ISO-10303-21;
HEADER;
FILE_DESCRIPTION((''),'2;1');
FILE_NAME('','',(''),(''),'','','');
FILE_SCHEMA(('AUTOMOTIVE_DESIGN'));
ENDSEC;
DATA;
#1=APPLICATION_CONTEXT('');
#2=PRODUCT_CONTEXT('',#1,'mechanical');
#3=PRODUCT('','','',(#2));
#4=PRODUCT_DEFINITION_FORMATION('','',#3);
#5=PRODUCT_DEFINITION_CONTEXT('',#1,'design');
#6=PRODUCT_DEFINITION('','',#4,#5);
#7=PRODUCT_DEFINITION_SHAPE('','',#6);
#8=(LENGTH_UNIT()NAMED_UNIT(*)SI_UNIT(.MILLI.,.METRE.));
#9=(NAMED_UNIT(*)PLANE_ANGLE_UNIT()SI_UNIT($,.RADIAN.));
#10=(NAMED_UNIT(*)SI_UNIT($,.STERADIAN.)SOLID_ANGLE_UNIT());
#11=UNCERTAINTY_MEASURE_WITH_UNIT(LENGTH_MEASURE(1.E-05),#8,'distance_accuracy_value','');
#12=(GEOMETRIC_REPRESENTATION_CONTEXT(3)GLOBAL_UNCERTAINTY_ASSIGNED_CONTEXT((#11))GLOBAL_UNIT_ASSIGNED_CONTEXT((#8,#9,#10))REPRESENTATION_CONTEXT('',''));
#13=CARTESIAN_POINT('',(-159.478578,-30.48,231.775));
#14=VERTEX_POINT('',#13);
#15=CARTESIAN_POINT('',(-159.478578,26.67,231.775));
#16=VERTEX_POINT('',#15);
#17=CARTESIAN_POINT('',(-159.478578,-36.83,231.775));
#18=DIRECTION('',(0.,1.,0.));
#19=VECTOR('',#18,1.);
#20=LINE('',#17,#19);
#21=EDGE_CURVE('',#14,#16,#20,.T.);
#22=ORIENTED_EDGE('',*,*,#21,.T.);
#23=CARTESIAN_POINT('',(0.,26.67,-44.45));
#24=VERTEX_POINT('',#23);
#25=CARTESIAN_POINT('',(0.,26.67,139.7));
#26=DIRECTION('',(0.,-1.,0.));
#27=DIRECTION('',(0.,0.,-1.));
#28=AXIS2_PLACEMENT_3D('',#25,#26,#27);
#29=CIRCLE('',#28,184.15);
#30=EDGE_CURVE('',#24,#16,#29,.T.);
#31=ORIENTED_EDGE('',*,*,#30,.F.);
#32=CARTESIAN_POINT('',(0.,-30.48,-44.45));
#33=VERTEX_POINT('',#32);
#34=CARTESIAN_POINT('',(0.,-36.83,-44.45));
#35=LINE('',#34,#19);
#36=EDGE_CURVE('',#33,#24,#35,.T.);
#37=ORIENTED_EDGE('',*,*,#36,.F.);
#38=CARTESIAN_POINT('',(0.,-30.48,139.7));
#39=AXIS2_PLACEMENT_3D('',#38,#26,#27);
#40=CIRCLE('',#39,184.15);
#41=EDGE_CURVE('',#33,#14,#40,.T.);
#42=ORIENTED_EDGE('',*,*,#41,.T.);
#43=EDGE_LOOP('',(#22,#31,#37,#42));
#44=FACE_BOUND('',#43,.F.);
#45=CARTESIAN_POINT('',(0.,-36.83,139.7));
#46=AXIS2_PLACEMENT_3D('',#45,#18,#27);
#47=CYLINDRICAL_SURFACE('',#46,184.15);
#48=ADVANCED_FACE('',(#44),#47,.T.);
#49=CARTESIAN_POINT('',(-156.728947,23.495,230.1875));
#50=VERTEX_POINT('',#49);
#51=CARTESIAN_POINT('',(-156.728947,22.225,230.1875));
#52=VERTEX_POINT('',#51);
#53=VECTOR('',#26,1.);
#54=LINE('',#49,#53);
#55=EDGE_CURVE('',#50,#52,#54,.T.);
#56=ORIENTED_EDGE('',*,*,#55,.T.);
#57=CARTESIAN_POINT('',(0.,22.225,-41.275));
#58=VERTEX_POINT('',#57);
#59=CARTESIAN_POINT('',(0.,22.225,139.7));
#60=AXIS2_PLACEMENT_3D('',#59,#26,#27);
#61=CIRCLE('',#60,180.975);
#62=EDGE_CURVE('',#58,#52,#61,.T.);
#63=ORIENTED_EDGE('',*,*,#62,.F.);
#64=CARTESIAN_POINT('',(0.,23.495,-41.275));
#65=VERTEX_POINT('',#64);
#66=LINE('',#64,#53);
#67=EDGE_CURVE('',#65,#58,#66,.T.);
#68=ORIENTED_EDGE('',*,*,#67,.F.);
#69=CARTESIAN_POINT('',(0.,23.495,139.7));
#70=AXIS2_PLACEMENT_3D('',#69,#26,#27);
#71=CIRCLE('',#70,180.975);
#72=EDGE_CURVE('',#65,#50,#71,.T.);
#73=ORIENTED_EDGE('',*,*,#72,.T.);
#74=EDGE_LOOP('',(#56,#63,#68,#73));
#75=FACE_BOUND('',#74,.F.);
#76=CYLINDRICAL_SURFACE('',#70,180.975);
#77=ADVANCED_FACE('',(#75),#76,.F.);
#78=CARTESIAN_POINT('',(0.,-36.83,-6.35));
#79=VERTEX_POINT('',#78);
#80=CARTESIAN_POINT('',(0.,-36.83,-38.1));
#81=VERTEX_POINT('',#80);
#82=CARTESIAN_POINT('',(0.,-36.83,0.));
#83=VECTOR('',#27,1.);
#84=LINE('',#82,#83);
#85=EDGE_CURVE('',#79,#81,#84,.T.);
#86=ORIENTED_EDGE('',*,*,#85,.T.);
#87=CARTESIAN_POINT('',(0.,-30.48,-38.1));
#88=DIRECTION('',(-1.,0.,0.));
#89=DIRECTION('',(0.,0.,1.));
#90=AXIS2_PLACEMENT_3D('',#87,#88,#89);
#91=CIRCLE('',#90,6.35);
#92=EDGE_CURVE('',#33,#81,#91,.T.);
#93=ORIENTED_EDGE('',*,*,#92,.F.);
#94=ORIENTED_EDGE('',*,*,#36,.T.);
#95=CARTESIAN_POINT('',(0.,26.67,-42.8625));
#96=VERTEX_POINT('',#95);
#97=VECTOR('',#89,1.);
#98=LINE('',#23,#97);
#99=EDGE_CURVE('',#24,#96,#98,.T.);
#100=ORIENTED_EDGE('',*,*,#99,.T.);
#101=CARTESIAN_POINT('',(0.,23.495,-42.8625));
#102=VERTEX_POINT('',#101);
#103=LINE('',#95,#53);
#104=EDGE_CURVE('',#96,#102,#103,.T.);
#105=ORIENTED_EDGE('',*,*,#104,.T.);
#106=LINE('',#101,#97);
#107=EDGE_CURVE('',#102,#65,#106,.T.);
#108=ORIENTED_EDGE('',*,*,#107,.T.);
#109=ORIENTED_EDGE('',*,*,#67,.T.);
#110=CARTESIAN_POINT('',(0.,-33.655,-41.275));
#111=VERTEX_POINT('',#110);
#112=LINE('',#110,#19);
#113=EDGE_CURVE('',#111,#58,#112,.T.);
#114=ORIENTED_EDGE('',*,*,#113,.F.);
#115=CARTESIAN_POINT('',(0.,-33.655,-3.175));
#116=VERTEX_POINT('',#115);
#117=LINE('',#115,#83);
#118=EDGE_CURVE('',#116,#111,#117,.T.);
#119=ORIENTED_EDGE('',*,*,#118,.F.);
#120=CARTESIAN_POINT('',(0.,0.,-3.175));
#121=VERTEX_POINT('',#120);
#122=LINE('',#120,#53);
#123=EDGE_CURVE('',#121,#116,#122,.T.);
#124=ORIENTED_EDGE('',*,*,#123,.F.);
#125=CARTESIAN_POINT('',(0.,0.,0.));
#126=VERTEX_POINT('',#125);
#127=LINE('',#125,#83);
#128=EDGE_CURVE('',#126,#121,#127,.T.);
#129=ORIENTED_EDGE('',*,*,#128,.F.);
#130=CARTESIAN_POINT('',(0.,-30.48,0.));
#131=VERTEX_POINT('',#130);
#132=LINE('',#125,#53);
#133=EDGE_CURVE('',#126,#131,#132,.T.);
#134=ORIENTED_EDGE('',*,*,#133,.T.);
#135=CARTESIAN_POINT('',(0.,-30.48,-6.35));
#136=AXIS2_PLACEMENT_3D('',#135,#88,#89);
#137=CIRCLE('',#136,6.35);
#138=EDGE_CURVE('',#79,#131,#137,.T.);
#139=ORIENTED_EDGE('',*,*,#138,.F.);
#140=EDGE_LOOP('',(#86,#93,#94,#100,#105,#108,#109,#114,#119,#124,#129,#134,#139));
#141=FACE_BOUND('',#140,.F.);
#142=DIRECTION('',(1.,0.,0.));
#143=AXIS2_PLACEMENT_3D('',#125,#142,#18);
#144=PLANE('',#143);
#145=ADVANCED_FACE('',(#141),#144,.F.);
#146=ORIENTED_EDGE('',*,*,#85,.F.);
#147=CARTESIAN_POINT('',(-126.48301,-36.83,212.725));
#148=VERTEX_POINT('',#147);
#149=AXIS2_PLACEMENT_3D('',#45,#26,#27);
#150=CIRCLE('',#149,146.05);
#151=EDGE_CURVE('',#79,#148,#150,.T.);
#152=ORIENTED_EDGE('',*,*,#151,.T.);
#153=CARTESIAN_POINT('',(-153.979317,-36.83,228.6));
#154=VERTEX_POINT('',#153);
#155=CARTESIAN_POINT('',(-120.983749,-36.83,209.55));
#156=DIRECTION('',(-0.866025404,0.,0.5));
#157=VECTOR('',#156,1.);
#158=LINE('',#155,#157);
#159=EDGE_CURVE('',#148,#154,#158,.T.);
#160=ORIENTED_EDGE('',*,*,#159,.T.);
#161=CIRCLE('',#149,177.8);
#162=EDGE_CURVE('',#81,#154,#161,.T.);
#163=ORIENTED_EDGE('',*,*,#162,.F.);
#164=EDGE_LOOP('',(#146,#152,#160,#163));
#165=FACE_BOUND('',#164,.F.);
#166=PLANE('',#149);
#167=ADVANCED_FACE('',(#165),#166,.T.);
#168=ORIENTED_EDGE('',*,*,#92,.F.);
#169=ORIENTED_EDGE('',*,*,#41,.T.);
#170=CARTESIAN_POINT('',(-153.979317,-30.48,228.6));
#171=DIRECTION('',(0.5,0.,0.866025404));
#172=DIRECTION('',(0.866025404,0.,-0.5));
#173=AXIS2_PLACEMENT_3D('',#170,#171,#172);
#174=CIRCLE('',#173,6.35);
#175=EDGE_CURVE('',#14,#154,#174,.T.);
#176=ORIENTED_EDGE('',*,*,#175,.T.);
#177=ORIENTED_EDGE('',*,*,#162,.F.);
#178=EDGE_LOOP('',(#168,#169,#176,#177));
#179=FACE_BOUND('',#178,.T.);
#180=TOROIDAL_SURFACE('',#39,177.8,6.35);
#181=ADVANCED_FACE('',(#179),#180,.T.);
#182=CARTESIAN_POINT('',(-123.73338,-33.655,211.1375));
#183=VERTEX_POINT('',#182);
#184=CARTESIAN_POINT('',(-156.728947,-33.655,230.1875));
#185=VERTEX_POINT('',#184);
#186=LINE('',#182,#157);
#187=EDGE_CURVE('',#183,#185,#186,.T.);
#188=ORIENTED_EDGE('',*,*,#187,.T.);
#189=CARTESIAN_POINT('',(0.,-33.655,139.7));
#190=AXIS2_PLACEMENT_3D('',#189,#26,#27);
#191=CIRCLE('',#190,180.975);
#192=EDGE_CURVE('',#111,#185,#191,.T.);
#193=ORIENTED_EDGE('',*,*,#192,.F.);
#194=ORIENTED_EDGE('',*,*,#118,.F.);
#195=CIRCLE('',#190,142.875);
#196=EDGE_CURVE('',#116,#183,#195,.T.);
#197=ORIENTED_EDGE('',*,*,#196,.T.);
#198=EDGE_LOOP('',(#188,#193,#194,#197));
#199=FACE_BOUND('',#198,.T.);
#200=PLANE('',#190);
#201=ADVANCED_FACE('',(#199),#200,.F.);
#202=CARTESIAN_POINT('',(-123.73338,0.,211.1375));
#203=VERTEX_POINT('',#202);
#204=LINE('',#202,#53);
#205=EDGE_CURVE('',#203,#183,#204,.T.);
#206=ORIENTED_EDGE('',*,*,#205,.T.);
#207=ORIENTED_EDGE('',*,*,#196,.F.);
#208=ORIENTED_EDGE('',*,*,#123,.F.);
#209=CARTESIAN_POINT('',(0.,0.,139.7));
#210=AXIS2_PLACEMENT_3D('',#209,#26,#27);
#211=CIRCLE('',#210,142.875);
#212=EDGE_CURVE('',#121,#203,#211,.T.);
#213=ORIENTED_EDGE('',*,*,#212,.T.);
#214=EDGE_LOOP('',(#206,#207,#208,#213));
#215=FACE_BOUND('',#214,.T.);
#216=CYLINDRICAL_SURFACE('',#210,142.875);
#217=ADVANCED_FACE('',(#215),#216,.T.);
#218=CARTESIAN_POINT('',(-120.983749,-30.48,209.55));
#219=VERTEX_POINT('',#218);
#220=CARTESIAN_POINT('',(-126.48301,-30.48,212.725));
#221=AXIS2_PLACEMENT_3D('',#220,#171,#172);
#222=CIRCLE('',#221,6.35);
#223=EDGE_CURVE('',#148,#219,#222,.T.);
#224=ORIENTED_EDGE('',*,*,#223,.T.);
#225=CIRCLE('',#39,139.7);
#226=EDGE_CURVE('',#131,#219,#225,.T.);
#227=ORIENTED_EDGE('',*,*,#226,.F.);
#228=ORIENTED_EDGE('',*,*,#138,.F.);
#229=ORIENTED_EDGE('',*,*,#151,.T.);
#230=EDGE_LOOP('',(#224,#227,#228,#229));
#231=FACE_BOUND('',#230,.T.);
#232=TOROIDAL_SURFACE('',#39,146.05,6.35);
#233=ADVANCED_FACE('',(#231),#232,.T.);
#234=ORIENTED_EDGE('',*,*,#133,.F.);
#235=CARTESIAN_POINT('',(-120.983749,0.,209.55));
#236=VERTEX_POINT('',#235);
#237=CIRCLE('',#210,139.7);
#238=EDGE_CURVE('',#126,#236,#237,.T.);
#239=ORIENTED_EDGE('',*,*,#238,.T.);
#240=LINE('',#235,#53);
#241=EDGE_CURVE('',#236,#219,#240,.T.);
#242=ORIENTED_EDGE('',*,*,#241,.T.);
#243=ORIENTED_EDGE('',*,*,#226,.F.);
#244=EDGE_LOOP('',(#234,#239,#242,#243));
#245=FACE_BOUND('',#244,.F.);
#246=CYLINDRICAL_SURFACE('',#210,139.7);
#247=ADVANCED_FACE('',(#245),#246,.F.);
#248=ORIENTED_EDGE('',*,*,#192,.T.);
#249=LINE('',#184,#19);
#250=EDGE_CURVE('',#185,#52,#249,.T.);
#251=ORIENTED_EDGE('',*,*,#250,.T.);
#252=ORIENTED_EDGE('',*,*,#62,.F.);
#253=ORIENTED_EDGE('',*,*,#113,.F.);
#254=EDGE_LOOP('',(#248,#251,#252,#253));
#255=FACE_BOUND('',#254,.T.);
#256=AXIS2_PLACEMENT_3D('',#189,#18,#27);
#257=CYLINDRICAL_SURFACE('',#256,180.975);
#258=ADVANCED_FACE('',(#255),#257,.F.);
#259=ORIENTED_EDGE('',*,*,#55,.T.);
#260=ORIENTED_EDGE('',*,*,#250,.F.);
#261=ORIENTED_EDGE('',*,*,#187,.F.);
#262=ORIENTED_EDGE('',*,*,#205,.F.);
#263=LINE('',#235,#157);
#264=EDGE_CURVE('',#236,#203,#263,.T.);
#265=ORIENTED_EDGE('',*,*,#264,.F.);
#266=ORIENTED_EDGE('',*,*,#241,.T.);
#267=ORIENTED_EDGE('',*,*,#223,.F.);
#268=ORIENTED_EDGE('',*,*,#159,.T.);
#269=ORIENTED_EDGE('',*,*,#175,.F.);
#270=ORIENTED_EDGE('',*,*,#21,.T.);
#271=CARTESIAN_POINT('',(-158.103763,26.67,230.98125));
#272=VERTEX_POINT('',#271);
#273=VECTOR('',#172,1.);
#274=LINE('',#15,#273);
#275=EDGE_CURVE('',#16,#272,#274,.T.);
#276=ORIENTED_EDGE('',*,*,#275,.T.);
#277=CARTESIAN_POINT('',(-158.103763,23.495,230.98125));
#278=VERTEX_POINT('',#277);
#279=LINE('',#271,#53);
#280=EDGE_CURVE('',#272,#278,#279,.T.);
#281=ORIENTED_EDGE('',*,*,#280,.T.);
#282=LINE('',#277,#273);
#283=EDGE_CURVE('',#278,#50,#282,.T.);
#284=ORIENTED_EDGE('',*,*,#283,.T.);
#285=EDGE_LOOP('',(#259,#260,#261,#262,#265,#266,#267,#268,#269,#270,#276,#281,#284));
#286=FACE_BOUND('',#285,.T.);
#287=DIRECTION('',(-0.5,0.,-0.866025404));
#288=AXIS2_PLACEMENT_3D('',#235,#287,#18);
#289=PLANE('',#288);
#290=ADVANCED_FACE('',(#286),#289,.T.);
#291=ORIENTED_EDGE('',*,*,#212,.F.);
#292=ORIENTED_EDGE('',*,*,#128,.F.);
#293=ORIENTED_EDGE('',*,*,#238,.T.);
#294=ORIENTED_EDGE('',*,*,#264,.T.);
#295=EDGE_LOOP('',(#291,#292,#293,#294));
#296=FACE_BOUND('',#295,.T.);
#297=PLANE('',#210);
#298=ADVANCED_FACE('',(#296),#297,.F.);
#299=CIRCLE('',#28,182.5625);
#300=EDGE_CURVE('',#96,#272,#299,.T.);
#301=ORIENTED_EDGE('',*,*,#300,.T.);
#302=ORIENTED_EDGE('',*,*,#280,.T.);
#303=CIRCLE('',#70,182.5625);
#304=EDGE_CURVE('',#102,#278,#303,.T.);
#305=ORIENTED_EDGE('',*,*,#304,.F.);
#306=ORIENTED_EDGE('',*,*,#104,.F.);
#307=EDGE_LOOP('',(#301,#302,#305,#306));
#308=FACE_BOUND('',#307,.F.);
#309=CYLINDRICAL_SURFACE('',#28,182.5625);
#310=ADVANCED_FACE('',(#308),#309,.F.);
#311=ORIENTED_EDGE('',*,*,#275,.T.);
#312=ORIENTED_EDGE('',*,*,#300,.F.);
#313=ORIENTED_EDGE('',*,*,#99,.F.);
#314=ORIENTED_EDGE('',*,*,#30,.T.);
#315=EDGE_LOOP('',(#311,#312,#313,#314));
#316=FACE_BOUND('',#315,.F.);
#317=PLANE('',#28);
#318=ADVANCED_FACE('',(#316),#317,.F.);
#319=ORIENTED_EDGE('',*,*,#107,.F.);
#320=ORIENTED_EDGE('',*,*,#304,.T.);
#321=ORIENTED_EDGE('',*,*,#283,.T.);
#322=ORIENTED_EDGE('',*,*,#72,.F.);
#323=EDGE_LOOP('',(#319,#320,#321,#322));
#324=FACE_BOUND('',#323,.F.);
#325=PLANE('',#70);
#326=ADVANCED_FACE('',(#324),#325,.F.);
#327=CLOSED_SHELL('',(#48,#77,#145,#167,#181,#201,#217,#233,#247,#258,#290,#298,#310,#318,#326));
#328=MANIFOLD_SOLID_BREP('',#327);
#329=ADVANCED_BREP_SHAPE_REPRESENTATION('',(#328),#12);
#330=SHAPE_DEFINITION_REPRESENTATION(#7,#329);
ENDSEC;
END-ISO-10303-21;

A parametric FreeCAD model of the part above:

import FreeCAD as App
import Part
import Sketcher
from FreeCAD import Vector
Q = App.Units.Quantity


def edges_at(feature, points):
    """Names of the edges that pass closest to the given points."""
    edges = feature.Shape.Edges
    near = lambda p: min(range(len(edges)), key=lambda i: edges[i].distToShape(Part.Vertex(*p))[0])
    return sorted({f"Edge{near(p) + 1}" for p in points})

doc = App.newDocument("Part")
params = doc.addObject("Spreadsheet::Sheet", "Params")
for row, (alias, value) in enumerate([
    ("sketch1_width", "2.5 in"),
    ("sketch1_height", "1.5 in"),
    ("sketch1_width2", "1.45 in"),
    ("sketch1_height2", "1.75 in"),
    ("sketch1_width3", "0.125 in"),
    ("revolution_angle", "240 deg"),
    ("fillet_radius", "0.25 in"),
], start=1):
    params.set(f"A{row}", alias)
    params.set(f"B{row}", "=" + value)
    params.setAlias(f"B{row}", alias)

body = doc.addObject("PartDesign::Body", "Body")

sketch1 = body.newObject("Sketcher::SketchObject", "Sketch")
sketch1.AttachmentSupport = (doc.getObject("YZ_Plane"), [""])
sketch1.MapMode = "FlatFace"
sketch1.addGeometry(Part.LineSegment(Vector(0, -3.2, 0), Vector(0, 0, 0)), False)
sketch1.addGeometry(Part.LineSegment(Vector(0, 0, 0), Vector(-36.8, 0, 0)), False)
sketch1.addGeometry(Part.LineSegment(Vector(-36.8, 0, 0), Vector(-36.8, -44.5, 0)), False)
sketch1.addGeometry(Part.LineSegment(Vector(-36.8, -44.5, 0), Vector(26.7, -44.5, 0)), False)
sketch1.addGeometry(Part.LineSegment(Vector(26.7, -44.5, 0), Vector(26.7, -42.9, 0)), False)
sketch1.addGeometry(Part.LineSegment(Vector(26.7, -42.9, 0), Vector(23.5, -42.9, 0)), False)
sketch1.addGeometry(Part.LineSegment(Vector(23.5, -42.9, 0), Vector(23.5, -41.3, 0)), False)
sketch1.addGeometry(Part.LineSegment(Vector(23.5, -41.3, 0), Vector(-33.7, -41.3, 0)), False)
sketch1.addGeometry(Part.LineSegment(Vector(-33.7, -41.3, 0), Vector(-33.7, -3.2, 0)), False)
sketch1.addGeometry(Part.LineSegment(Vector(-33.7, -3.2, 0), Vector(0, -3.2, 0)), False)
sketch1.addGeometry(Part.LineSegment(Vector(26.7, 139.7, 0), Vector(-36.8, 139.7, 0)), True)
sketch1.addConstraint(Sketcher.Constraint("Coincident", 0, 2, 1, 1))
sketch1.addConstraint(Sketcher.Constraint("Coincident", 1, 2, 2, 1))
sketch1.addConstraint(Sketcher.Constraint("Coincident", 2, 2, 3, 1))
sketch1.addConstraint(Sketcher.Constraint("Coincident", 3, 2, 4, 1))
sketch1.addConstraint(Sketcher.Constraint("Coincident", 4, 2, 5, 1))
sketch1.addConstraint(Sketcher.Constraint("Coincident", 5, 2, 6, 1))
sketch1.addConstraint(Sketcher.Constraint("Coincident", 6, 2, 7, 1))
sketch1.addConstraint(Sketcher.Constraint("Coincident", 7, 2, 8, 1))
sketch1.addConstraint(Sketcher.Constraint("Coincident", 8, 2, 9, 1))
sketch1.addConstraint(Sketcher.Constraint("Coincident", 9, 2, 0, 1))
sketch1.addConstraint(Sketcher.Constraint("Vertical", 0))
sketch1.addConstraint(Sketcher.Constraint("Horizontal", 1))
sketch1.addConstraint(Sketcher.Constraint("Vertical", 2))
sketch1.addConstraint(Sketcher.Constraint("Horizontal", 3))
sketch1.addConstraint(Sketcher.Constraint("Vertical", 4))
sketch1.addConstraint(Sketcher.Constraint("Horizontal", 5))
sketch1.addConstraint(Sketcher.Constraint("Vertical", 6))
sketch1.addConstraint(Sketcher.Constraint("Horizontal", 7))
sketch1.addConstraint(Sketcher.Constraint("Vertical", 8))
sketch1.addConstraint(Sketcher.Constraint("Horizontal", 9))
sketch1.addConstraint(Sketcher.Constraint("Horizontal", 10))
sketch1.addConstraint(Sketcher.Constraint("Coincident", 0, 2, -1, 1))
sketch1.addConstraint(Sketcher.Constraint("Vertical", 4, 2, 10, 1))
sketch1.addConstraint(Sketcher.Constraint("Vertical", 2, 2, 10, 2))
sketch1.addConstraint(Sketcher.Constraint("Equal", 5, 0))
sketch1.addConstraint(Sketcher.Constraint("Equal", 4, 6))
sketch1.addConstraint(Sketcher.Constraint("DistanceX", 3, 1, 3, 2, Q("2.5 in")))
sketch1.addConstraint(Sketcher.Constraint("DistanceY", 8, 1, 8, 2, Q("1.5 in")))
sketch1.addConstraint(Sketcher.Constraint("DistanceX", 1, 2, 1, 1, Q("1.45 in")))
sketch1.addConstraint(Sketcher.Constraint("DistanceY", 2, 2, 2, 1, Q("1.75 in")))
sketch1.addConstraint(Sketcher.Constraint("DistanceY", -1, 1, 10, 1, Q("5.5 in")))
sketch1.addConstraint(Sketcher.Constraint("DistanceX", 5, 2, 5, 1, Q("0.125 in")))
sketch1.addConstraint(Sketcher.Constraint("DistanceX", 9, 1, 9, 2, Q("1.325 in")))
sketch1.setExpression("Constraints[26]", "Params.sketch1_width")
sketch1.setExpression("Constraints[27]", "Params.sketch1_height")
sketch1.setExpression("Constraints[28]", "Params.sketch1_width2")
sketch1.setExpression("Constraints[29]", "Params.sketch1_height2")
sketch1.setExpression("Constraints[31]", "Params.sketch1_width3")
revolution = body.newObject("PartDesign::Revolution", "Revolution")
revolution.Profile = sketch1
revolution.ReferenceAxis = (sketch1, ["Axis0"])
revolution.setExpression("Angle", "Params.revolution_angle")
doc.recompute()

fillet = body.newObject("PartDesign::Fillet", "Fillet")
fillet.Base = (revolution, edges_at(revolution, [(159.479, -36.83, 231.775), (120.984, -36.83, 209.55)]))
fillet.setExpression("Radius", "Params.fillet_radius")

doc.recompute()
